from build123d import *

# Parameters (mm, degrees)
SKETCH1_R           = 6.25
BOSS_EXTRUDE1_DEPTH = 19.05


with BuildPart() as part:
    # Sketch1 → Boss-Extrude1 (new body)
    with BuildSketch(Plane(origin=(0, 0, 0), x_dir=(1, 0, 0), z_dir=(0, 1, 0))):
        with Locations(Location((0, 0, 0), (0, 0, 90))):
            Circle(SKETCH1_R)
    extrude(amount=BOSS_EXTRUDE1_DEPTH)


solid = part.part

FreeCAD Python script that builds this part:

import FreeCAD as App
import Part
import Sketcher
Q = App.Units.Quantity

doc = App.newDocument("Part")
params = doc.addObject("Spreadsheet::Sheet", "Params")
for row, (alias, value) in enumerate([
    ("sketch1_diameter", "12.5 mm"),
    ("pad1_length", "19.05 mm"),
], start=1):
    params.set(f"A{row}", alias)
    params.set(f"B{row}", "=" + value)
    params.setAlias(f"B{row}", alias)

body = doc.addObject("PartDesign::Body", "Body")

sketch1 = body.newObject("Sketcher::SketchObject", "Sketch")
sketch1.AttachmentSupport = (doc.getObject("XZ_Plane"), [""])
sketch1.MapMode = "FlatFace"
sketch1.addGeometry(Part.Circle(App.Vector(0, 0, 0), App.Vector(0, 0, 1), 6), False)
sketch1.addConstraint([
    Sketcher.Constraint("Coincident", 0, 3, -1, 1),
    Sketcher.Constraint("Diameter", 0, Q("12.5 mm")),
])
sketch1.setExpression("Constraints[1]", "Params.sketch1_diameter")
pad1 = body.newObject("PartDesign::Pad", "Pad")
pad1.Profile = sketch1
pad1.setExpression("Length", "Params.pad1_length")
pad1.Reversed = True

doc.recompute()
